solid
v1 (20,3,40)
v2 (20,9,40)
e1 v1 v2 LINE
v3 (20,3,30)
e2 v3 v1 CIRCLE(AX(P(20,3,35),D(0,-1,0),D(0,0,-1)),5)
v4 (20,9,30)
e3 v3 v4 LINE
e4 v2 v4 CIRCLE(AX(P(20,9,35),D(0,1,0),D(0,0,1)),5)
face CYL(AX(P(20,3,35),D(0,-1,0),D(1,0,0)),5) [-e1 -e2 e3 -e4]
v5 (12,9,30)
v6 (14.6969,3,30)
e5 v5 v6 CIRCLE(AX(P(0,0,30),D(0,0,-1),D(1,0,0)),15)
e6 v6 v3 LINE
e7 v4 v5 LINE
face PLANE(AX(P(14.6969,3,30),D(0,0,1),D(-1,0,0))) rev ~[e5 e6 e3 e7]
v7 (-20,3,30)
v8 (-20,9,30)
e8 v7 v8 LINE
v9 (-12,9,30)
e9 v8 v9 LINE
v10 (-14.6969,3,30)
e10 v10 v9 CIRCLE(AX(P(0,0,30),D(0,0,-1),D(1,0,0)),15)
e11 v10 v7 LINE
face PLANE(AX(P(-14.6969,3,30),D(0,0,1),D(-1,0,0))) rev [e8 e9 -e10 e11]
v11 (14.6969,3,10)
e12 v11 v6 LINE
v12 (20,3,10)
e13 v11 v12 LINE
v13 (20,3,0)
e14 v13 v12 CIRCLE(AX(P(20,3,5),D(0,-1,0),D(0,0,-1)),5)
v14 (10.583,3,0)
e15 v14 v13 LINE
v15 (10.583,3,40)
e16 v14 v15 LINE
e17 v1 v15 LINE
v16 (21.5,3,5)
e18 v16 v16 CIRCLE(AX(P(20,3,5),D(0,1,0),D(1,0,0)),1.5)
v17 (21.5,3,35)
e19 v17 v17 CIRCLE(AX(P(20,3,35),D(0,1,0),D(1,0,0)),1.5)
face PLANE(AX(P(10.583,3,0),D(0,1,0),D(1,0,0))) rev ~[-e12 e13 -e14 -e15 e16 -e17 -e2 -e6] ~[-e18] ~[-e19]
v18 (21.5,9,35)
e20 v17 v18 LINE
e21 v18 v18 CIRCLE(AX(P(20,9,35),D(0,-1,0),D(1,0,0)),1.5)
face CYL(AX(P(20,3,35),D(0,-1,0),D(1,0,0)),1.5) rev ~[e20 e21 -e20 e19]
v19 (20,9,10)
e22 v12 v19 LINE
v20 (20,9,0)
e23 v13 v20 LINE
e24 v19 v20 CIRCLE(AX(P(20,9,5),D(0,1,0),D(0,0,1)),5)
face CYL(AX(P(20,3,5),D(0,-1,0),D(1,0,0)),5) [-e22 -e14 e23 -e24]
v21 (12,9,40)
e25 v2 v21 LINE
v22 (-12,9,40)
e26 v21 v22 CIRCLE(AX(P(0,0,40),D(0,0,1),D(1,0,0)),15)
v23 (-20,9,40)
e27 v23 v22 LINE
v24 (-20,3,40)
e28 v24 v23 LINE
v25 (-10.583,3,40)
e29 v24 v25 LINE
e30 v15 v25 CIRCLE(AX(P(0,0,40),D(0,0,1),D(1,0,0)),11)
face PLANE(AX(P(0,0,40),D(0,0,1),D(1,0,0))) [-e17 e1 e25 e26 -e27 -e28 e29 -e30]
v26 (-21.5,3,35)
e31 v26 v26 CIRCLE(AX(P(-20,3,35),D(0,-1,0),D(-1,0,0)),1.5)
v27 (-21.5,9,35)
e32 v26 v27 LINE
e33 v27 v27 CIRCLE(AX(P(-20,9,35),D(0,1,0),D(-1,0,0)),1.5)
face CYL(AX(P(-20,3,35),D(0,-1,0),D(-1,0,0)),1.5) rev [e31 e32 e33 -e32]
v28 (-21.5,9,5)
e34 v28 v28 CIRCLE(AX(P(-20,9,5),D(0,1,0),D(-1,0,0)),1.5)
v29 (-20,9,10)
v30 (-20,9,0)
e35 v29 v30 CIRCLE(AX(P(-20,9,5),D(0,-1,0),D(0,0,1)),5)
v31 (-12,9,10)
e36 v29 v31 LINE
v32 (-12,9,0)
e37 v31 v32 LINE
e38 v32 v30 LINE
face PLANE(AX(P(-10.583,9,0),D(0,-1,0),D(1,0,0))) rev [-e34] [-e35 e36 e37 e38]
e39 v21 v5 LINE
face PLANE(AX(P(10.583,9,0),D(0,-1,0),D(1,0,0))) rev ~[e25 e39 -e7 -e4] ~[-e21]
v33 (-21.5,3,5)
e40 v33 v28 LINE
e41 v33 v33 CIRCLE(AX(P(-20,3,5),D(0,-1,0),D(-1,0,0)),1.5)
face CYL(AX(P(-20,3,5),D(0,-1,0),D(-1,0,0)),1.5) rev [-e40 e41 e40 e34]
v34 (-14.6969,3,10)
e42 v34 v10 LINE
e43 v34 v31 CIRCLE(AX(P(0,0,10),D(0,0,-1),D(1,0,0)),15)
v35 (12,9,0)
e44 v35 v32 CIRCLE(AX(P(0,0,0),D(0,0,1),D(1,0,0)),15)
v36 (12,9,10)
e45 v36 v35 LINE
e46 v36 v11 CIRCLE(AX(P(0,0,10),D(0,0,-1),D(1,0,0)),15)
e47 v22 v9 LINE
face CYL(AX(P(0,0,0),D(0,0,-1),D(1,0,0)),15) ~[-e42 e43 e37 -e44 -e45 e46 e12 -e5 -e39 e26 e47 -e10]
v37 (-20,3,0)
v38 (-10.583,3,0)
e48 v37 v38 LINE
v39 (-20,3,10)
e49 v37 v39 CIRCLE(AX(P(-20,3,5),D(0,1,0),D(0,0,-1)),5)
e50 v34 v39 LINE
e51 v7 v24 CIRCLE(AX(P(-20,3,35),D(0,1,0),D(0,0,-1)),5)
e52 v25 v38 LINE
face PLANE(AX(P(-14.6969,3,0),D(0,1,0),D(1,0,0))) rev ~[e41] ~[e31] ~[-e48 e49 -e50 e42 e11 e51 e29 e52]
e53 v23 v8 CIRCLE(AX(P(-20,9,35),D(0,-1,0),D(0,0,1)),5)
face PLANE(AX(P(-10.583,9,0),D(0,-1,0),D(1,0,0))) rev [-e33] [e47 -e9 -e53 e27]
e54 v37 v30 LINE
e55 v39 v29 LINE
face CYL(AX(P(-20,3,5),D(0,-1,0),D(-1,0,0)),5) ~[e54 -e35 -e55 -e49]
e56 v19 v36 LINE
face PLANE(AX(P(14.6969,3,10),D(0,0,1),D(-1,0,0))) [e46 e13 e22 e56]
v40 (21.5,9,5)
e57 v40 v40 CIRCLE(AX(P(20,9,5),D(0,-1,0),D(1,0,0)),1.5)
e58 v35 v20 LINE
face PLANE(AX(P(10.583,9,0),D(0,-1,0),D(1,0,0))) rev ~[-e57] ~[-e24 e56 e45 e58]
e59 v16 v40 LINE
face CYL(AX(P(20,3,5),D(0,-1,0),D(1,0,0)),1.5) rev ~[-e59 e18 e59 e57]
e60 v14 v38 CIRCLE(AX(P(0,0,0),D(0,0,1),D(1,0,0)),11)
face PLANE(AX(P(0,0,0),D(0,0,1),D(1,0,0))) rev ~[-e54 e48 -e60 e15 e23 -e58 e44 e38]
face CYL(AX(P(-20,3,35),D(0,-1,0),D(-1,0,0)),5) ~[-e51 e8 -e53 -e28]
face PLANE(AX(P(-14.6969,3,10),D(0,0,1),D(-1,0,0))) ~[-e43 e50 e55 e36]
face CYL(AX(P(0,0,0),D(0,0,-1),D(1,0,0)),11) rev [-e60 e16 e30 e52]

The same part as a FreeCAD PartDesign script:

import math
import FreeCAD as App
import Part
import Sketcher
from FreeCAD import Vector
Q = App.Units.Quantity

doc = App.newDocument("Part")
body = doc.addObject("PartDesign::Body", "Body")

sketch1 = body.newObject("Sketcher::SketchObject", "Sketch")
sketch1.AttachmentSupport = (doc.getObject("XY_Plane"), [""])
sketch1.MapMode = "FlatFace"
sketch1.addGeometry(Part.ArcOfCircle(Part.Circle(Vector(0, 0, 0), Vector(0, 0, 1), 11), math.radians(16), math.radians(164)), False)
sketch1.addGeometry(Part.LineSegment(Vector(10.6, 3, 0), Vector(14.7, 3, 0)), False)
sketch1.addGeometry(Part.ArcOfCircle(Part.Circle(Vector(0, 0, 0), Vector(0, 0, 1), 15), math.radians(12), math.radians(168)), False)
sketch1.addGeometry(Part.LineSegment(Vector(-14.7, 3, 0), Vector(-10.6, 3, 0)), False)
sketch1.addConstraint(Sketcher.Constraint("Coincident", 0, 1, 1, 1))
sketch1.addConstraint(Sketcher.Constraint("Coincident", 1, 2, 2, 1))
sketch1.addConstraint(Sketcher.Constraint("Coincident", 2, 2, 3, 1))
sketch1.addConstraint(Sketcher.Constraint("Coincident", 3, 2, 0, 2))
sketch1.addConstraint(Sketcher.Constraint("Horizontal", 1))
sketch1.addConstraint(Sketcher.Constraint("Horizontal", 3))
sketch1.addConstraint(Sketcher.Constraint("Coincident", 0, 3, -1, 1))
sketch1.addConstraint(Sketcher.Constraint("Coincident", 2, 3, -1, 1))
sketch1.addConstraint(Sketcher.Constraint("Horizontal", 1, 2, 2, 2))
sketch1.addConstraint(Sketcher.Constraint("Radius", 0, Q("11 mm")))
sketch1.addConstraint(Sketcher.Constraint("DistanceY", -1, 1, 0, 1, Q("3 mm")))
sketch1.addConstraint(Sketcher.Constraint("Radius", 2, Q("15 mm")))
pad1 = body.newObject("PartDesign::Pad", "Pad")
pad1.Profile = sketch1
pad1.Length = 40

sketch2 = body.newObject("Sketcher::SketchObject", "Sketch001")
sketch2.AttachmentSupport = (doc.getObject("XZ_Plane"), [""])
sketch2.MapMode = "FlatFace"
sketch2.AttachmentOffset = App.Placement(Vector(0, 0, -3), App.Rotation())
sketch2.addGeometry(Part.LineSegment(Vector(10.6, 10, 0), Vector(10.6, 0, 0)), False)
sketch2.addGeometry(Part.LineSegment(Vector(10.6, 0, 0), Vector(20, 0, 0)), False)
sketch2.addGeometry(Part.ArcOfCircle(Part.Circle(Vector(20, 5, 0), Vector(0, 0, 1), 5), math.radians(-90), math.radians(90)), False)
sketch2.addGeometry(Part.LineSegment(Vector(20, 10, 0), Vector(10.6, 10, 0)), False)
sketch2.addGeometry(Part.Circle(Vector(20, 5, 0), Vector(0, 0, 1), 1.5), False)
sketch2.addGeometry(Part.LineSegment(Vector(10.6, 40, 0), Vector(10.6, 30, 0)), False)
sketch2.addGeometry(Part.LineSegment(Vector(10.6, 30, 0), Vector(20, 30, 0)), False)
sketch2.addGeometry(Part.ArcOfCircle(Part.Circle(Vector(20, 35, 0), Vector(0, 0, 1), 5), math.radians(-90), math.radians(90)), False)
sketch2.addGeometry(Part.LineSegment(Vector(20, 40, 0), Vector(10.6, 40, 0)), False)
sketch2.addGeometry(Part.Circle(Vector(20, 35, 0), Vector(0, 0, 1), 1.5), False)
sketch2.addConstraint(Sketcher.Constraint("Coincident", 0, 2, 1, 1))
sketch2.addConstraint(Sketcher.Constraint("Tangent", 1, 2, 2, 1))
sketch2.addConstraint(Sketcher.Constraint("Tangent", 2, 2, 3, 1))
sketch2.addConstraint(Sketcher.Constraint("Coincident", 3, 2, 0, 1))
sketch2.addConstraint(Sketcher.Constraint("Coincident", 5, 2, 6, 1))
sketch2.addConstraint(Sketcher.Constraint("Tangent", 6, 2, 7, 1))
sketch2.addConstraint(Sketcher.Constraint("Tangent", 7, 2, 8, 1))
sketch2.addConstraint(Sketcher.Constraint("Coincident", 8, 2, 5, 1))
sketch2.addConstraint(Sketcher.Constraint("Vertical", 0))
sketch2.addConstraint(Sketcher.Constraint("Horizontal", 1))
sketch2.addConstraint(Sketcher.Constraint("Horizontal", 3))
sketch2.addConstraint(Sketcher.Constraint("Vertical", 5))
sketch2.addConstraint(Sketcher.Constraint("Horizontal", 6))
sketch2.addConstraint(Sketcher.Constraint("Horizontal", 8))
sketch2.addConstraint(Sketcher.Constraint("Coincident", 4, 3, 2, 3))
sketch2.addConstraint(Sketcher.Constraint("Coincident", 9, 3, 7, 3))
sketch2.addConstraint(Sketcher.Constraint("Equal", 2, 7))
sketch2.addConstraint(Sketcher.Constraint("Equal", 4, 9))
sketch2.addConstraint(Sketcher.Constraint("PointOnObject", 0, 2, -1))
sketch2.addConstraint(Sketcher.Constraint("Vertical", 4, 3, 7, 3))
sketch2.addConstraint(Sketcher.Constraint("Vertical", 3, 2, 5, 2))
sketch2.addConstraint(Sketcher.Constraint("Diameter", 4, Q("3 mm")))
sketch2.addConstraint(Sketcher.Constraint("Radius", 2, Q("5 mm")))
sketch2.addConstraint(Sketcher.Constraint("DistanceX", -1, 1, 2, 3, Q("20 mm")))
sketch2.addConstraint(Sketcher.Constraint("DistanceY", 3, 2, 5, 2, Q("20 mm")))
sketch2.addConstraint(Sketcher.Constraint("DistanceX", 1, 1, 1, 2, Q("9.417 mm")))
pad2 = body.newObject("PartDesign::Pad", "Pad001")
pad2.Profile = sketch2
pad2.Length = 6
pad2.Reversed = True
doc.recompute()

mirrored = body.newObject("PartDesign::Mirrored", "Mirrored")
mirrored.Originals = [pad2]
mirrored.MirrorPlane = (doc.getObject("YZ_Plane"), [""])
body.Tip = mirrored

doc.recompute()
